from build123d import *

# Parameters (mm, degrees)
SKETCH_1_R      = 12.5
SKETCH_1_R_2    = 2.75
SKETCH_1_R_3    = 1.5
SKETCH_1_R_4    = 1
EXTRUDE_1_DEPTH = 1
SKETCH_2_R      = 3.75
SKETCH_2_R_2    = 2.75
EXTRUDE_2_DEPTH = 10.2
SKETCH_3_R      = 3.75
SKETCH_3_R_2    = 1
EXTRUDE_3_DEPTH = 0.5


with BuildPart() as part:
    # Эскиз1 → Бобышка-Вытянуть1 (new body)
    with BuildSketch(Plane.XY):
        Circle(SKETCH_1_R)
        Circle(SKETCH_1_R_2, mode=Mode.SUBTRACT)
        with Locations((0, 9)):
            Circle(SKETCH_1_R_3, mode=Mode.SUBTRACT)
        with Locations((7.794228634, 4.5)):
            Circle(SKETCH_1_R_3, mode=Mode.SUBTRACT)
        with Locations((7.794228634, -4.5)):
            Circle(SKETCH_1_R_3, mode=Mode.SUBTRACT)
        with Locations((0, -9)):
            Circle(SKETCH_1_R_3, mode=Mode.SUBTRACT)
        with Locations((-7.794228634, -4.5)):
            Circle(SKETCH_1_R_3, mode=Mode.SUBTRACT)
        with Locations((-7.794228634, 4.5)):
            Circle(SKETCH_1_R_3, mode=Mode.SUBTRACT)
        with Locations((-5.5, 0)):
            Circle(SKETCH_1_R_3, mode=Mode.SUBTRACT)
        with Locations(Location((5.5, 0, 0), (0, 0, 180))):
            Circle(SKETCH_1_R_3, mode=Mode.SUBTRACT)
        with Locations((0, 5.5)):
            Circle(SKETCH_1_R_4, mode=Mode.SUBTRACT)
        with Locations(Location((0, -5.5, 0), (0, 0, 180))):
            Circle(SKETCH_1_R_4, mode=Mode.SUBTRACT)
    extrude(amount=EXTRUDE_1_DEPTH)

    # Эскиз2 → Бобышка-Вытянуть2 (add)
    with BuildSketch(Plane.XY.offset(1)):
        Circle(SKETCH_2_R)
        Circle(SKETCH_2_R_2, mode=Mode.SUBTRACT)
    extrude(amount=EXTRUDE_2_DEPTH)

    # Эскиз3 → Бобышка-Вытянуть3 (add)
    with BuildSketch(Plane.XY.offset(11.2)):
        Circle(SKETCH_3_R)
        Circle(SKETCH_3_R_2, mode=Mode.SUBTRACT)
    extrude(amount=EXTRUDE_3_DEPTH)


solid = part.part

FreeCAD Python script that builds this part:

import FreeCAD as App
import Part
import Sketcher
from FreeCAD import Vector
Q = App.Units.Quantity

doc = App.newDocument("Part")
body = doc.addObject("PartDesign::Body", "Body")

# Sketch on XY plane
sketch1 = body.newObject("Sketcher::SketchObject", "Sketch")
sketch1.AttachmentSupport = (doc.getObject("XY_Plane"), [""])
sketch1.MapMode = "FlatFace"
sketch1.addGeometry([
    Part.Circle(Vector(0, 0, 0), Vector(0, 0, 1), 12.5),  # 0
    Part.Circle(Vector(-7.794229, -4.5, 0), Vector(0, 0, 1), 1.5),  # 1
    Part.Circle(Vector(0, -9, 0), Vector(0, 0, 1), 1.5),  # 2
    Part.Circle(Vector(0, -5.5, 0), Vector(0, 0, 1), 1),  # 3
    Part.Circle(Vector(7.794229, -4.5, 0), Vector(0, 0, 1), 1.5),  # 4
    Part.Circle(Vector(-5.5, 0, 0), Vector(0, 0, 1), 1.5),  # 5
    Part.Circle(Vector(-7.794229, 4.5, 0), Vector(0, 0, 1), 1.5),  # 6
    Part.Circle(Vector(0, 0, 0), Vector(0, 0, 1), 2.75),  # 7
    Part.Circle(Vector(5.5, 0, 0), Vector(0, 0, 1), 1.5),  # 8
    Part.Circle(Vector(7.794229, 4.5, 0), Vector(0, 0, 1), 1.5),  # 9
    Part.Circle(Vector(0, 5.5, 0), Vector(0, 0, 1), 1),  # 10
    Part.Circle(Vector(0, 9, 0), Vector(0, 0, 1), 1.5),  # 11
], False)
sketch1.addConstraint([
    Sketcher.Constraint("Coincident", 0, 3, -1, 1),
    Sketcher.Constraint("Coincident", 7, 3, -1, 1),
    Sketcher.Constraint("Equal", 1, 2),
    Sketcher.Constraint("Equal", 2, 4),
    Sketcher.Constraint("Equal", 4, 5),
    Sketcher.Constraint("Equal", 5, 6),
    Sketcher.Constraint("Equal", 6, 8),
    Sketcher.Constraint("Equal", 8, 9),
    Sketcher.Constraint("Equal", 3, 10),
    Sketcher.Constraint("Equal", 9, 11),
    Sketcher.Constraint("Symmetric", 4, 3, 6, 3, -1, 1),
    Sketcher.Constraint("Symmetric", 5, 3, 8, 3, -1, 1),
    Sketcher.Constraint("Symmetric", 1, 3, 9, 3, -1, 1),
    Sketcher.Constraint("Symmetric", 3, 3, 10, 3, -1, 1),
    Sketcher.Constraint("Symmetric", 2, 3, 11, 3, -1, 1),
    Sketcher.Constraint("Symmetric", 1, 3, 4, 3, -2),
    Sketcher.Constraint("PointOnObject", 2, 3, -2),
    Sketcher.Constraint("PointOnObject", 3, 3, -2),
    Sketcher.Constraint("PointOnObject", 5, 3, -1),
    Sketcher.Constraint("Diameter", 0, Q("25 mm")),
    Sketcher.Constraint("Diameter", 1, Q("3 mm")),
    Sketcher.Constraint("Diameter", 3, Q("2 mm")),
    Sketcher.Constraint("Diameter", 7, Q("5.5 mm")),
    Sketcher.Constraint("DistanceY", 2, 3, -1, 1, Q("9 mm")),
    Sketcher.Constraint("DistanceY", 3, 3, 1, 3, Q("1 mm")),
    Sketcher.Constraint("DistanceY", 1, 3, 6, 3, Q("9 mm")),
    Sketcher.Constraint("DistanceX", 5, 3, -1, 1, Q("5.5 mm")),
    Sketcher.Constraint("DistanceX", 1, 3, -1, 1, Q("7.794229 mm")),
])
pad1 = body.newObject("PartDesign::Pad", "Pad")
pad1.Profile = sketch1
pad1.Length = 1

# Sketch on XY plane
sketch2 = body.newObject("Sketcher::SketchObject", "Sketch001")
sketch2.AttachmentSupport = (doc.getObject("XY_Plane"), [""])
sketch2.MapMode = "FlatFace"
sketch2.AttachmentOffset = App.Placement(Vector(0, 0, 1), App.Rotation())
sketch2.addGeometry([
    Part.Circle(Vector(0, 0, 0), Vector(0, 0, 1), 3.75),
    Part.Circle(Vector(0, 0, 0), Vector(0, 0, 1), 2.75),
], False)
sketch2.addConstraint([
    Sketcher.Constraint("Coincident", 0, 3, -1, 1),
    Sketcher.Constraint("Coincident", 1, 3, -1, 1),
    Sketcher.Constraint("Diameter", 0, Q("7.5 mm")),
    Sketcher.Constraint("Diameter", 1, Q("5.5 mm")),
])
pad2 = body.newObject("PartDesign::Pad", "Pad001")
pad2.Profile = sketch2
pad2.Length = 10.2

# Sketch on XY plane
sketch3 = body.newObject("Sketcher::SketchObject", "Sketch002")
sketch3.AttachmentSupport = (doc.getObject("XY_Plane"), [""])
sketch3.MapMode = "FlatFace"
sketch3.AttachmentOffset = App.Placement(Vector(0, 0, 11.2), App.Rotation())
sketch3.addGeometry([
    Part.Circle(Vector(0, 0, 0), Vector(0, 0, 1), 3.75),
    Part.Circle(Vector(0, 0, 0), Vector(0, 0, 1), 1),
], False)
sketch3.addConstraint([
    Sketcher.Constraint("Coincident", 0, 3, -1, 1),
    Sketcher.Constraint("Coincident", 1, 3, -1, 1),
    Sketcher.Constraint("Diameter", 1, Q("2 mm")),
    Sketcher.Constraint("Diameter", 0, Q("7.5 mm")),
])
pad3 = body.newObject("PartDesign::Pad", "Pad002")
pad3.Profile = sketch3
pad3.Length = 0.5

doc.recompute()
